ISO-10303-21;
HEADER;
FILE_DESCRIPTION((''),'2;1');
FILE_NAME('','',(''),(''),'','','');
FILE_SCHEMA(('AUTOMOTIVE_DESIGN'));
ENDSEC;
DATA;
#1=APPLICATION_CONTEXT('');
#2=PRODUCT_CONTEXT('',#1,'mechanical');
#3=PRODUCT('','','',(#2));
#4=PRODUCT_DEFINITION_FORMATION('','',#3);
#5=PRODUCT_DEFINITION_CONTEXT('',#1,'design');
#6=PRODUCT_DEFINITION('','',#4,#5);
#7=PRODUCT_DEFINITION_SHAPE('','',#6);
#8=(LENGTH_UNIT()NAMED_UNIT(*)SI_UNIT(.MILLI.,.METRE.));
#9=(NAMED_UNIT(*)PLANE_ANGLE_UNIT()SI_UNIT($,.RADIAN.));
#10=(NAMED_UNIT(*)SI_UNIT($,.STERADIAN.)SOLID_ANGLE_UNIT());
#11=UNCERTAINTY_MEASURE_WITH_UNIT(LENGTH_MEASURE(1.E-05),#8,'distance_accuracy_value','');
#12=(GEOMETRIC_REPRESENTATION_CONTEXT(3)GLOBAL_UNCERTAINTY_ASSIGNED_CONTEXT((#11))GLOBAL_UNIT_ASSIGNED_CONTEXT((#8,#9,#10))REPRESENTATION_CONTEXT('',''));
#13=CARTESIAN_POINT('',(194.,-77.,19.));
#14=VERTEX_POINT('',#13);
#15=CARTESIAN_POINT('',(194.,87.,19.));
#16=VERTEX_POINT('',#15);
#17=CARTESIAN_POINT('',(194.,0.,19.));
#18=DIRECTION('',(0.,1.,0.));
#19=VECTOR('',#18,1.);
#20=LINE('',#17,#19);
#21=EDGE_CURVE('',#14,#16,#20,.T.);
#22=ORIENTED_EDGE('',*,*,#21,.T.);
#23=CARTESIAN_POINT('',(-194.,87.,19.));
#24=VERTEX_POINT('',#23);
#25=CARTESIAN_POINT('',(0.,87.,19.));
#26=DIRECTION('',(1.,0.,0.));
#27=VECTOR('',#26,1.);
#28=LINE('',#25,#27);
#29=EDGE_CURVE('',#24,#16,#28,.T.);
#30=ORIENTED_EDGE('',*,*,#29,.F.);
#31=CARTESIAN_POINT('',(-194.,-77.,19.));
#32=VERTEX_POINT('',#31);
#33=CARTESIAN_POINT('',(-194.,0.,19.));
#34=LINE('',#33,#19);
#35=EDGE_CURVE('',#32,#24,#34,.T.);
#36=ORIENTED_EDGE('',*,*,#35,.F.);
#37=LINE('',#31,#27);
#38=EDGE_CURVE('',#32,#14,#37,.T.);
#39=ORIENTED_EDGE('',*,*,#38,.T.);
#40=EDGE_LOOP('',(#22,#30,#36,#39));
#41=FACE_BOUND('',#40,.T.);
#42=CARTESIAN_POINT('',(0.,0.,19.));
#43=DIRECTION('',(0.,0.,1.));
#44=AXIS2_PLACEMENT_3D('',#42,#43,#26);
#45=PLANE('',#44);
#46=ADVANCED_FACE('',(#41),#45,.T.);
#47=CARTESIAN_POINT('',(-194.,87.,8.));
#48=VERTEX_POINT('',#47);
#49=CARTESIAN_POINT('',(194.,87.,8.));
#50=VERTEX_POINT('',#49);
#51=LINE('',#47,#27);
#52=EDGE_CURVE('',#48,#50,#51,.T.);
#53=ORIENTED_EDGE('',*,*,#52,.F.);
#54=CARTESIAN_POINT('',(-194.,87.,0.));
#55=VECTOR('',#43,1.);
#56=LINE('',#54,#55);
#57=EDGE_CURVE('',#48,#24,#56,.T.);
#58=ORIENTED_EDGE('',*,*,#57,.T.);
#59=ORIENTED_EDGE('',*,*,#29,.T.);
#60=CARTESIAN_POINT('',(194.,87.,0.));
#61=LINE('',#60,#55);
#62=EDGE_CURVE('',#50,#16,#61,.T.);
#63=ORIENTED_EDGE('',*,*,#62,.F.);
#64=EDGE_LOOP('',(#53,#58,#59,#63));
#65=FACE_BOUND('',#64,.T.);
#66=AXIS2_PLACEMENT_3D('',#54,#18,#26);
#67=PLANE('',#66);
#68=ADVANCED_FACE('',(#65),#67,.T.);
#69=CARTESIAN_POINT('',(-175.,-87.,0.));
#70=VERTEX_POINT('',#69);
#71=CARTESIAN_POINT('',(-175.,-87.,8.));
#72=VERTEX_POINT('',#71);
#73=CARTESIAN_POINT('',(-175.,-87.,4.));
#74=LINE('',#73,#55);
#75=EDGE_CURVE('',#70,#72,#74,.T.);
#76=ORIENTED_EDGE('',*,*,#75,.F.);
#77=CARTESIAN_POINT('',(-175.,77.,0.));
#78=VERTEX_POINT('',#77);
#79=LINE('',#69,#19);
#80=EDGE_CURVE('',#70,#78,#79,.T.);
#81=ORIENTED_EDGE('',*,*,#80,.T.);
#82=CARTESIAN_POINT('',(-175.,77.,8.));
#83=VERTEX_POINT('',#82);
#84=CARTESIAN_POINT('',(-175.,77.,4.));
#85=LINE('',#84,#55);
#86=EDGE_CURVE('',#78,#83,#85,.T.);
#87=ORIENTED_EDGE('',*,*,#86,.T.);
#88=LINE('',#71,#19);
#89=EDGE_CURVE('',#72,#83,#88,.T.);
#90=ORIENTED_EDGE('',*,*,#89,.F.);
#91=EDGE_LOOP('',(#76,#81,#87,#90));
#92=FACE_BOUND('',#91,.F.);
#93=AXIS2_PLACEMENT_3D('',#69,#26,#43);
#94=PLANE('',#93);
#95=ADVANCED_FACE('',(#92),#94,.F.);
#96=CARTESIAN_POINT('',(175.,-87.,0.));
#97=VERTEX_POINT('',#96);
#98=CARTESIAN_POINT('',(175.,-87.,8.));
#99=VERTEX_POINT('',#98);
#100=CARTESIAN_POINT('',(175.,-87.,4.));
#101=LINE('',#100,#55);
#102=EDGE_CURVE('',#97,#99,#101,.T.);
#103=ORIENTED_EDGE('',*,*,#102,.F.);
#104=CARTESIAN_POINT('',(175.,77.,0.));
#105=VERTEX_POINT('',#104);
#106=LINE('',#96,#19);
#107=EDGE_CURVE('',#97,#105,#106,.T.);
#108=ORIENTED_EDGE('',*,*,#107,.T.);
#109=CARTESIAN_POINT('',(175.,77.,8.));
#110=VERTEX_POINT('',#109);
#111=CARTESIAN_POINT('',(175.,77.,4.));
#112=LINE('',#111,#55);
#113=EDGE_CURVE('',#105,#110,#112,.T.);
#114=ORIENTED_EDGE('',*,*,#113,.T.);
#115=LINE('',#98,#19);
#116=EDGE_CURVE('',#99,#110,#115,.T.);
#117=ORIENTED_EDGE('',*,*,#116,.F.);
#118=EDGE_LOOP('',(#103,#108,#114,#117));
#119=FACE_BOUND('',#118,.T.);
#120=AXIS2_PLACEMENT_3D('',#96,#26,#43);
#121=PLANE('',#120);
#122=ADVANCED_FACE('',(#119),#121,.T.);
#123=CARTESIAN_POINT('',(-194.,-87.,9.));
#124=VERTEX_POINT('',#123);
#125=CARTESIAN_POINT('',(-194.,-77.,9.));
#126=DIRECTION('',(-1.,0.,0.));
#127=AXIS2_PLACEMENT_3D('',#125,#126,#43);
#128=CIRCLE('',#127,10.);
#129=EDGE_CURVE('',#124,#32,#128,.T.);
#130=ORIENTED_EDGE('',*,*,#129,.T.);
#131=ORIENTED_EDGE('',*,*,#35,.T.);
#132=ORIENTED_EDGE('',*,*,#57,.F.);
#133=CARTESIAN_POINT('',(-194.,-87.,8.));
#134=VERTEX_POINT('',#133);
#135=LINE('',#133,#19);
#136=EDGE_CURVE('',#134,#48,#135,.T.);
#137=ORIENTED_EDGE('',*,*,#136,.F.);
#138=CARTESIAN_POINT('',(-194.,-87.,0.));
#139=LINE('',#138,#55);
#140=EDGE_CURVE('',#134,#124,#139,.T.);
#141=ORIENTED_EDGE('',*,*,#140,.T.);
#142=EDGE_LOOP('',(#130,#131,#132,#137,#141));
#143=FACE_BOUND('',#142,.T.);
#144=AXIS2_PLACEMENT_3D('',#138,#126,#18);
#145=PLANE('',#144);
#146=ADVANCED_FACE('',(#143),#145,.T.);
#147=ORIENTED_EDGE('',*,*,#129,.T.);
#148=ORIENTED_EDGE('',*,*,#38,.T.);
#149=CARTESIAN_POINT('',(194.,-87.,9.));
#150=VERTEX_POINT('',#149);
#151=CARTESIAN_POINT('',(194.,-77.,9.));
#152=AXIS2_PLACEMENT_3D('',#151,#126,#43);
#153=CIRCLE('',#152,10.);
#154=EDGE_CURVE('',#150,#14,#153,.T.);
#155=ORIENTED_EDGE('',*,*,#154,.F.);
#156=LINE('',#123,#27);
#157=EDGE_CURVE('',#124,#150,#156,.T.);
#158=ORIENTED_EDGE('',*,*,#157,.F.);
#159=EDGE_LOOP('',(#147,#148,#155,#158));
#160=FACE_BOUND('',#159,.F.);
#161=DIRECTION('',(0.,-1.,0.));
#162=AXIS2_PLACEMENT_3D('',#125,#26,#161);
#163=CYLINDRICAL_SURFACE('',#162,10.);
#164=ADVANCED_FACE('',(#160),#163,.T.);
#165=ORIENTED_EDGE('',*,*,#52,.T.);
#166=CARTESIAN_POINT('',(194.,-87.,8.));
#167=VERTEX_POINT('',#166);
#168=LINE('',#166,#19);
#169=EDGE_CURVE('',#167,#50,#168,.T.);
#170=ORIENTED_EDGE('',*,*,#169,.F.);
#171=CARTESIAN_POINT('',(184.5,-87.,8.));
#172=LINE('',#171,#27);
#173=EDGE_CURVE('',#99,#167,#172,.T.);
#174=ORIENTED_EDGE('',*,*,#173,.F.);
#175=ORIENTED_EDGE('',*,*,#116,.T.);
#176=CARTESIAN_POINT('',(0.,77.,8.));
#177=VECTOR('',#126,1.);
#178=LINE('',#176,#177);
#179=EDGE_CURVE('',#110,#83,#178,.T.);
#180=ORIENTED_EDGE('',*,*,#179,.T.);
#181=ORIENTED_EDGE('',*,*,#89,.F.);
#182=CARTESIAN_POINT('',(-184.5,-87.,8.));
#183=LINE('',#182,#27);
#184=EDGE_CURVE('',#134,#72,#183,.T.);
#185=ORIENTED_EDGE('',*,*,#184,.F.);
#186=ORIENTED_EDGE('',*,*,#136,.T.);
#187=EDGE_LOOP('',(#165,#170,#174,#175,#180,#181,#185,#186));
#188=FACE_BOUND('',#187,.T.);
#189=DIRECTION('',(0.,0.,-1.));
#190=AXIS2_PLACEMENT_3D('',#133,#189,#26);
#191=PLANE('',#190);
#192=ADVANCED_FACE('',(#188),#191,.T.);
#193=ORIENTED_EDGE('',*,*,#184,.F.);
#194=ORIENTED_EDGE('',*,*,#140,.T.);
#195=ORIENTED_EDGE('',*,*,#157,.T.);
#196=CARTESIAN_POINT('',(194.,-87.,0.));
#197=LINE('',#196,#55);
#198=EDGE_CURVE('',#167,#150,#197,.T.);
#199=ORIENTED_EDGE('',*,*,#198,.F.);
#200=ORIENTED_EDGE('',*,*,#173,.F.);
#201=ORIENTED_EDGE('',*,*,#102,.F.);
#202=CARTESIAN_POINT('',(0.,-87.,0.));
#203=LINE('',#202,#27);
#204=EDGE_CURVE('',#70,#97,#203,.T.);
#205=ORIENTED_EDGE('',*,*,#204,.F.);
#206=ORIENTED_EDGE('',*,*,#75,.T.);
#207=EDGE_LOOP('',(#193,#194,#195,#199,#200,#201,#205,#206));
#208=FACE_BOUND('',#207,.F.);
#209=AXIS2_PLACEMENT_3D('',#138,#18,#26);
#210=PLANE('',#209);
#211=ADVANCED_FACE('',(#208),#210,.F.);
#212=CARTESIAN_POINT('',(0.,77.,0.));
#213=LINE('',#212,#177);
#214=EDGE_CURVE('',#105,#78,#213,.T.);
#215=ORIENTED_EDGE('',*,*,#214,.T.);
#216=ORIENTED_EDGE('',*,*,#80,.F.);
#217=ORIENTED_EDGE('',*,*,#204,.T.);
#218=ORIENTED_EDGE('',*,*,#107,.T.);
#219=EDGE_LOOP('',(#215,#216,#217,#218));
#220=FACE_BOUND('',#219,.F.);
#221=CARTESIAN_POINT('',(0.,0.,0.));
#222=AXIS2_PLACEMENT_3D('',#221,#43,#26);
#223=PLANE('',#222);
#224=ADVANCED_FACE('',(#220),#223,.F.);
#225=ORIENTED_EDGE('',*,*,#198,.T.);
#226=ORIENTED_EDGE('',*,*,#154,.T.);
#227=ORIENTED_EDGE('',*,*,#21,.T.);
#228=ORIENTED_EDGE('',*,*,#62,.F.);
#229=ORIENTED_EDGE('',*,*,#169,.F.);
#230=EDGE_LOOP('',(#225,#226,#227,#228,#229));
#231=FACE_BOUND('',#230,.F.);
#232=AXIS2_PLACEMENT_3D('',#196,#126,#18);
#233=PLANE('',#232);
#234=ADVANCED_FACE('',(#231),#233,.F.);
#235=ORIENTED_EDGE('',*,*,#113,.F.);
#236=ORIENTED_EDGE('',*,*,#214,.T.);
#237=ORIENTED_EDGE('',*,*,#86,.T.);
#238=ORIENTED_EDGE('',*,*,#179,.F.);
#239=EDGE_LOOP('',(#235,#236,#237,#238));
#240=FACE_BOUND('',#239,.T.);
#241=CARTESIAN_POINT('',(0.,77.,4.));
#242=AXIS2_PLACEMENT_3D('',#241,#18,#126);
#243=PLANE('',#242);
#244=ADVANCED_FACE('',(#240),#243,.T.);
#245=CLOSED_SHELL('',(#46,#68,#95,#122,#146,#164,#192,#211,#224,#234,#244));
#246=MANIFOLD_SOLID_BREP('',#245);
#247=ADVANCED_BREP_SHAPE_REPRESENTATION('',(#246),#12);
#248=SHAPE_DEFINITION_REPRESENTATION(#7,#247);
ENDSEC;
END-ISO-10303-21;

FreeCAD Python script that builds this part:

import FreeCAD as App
import Part
import Sketcher
from FreeCAD import Vector


def edges_at(feature, points):
    """Names of the edges that pass closest to the given points."""
    edges = feature.Shape.Edges
    near = lambda p: min(range(len(edges)), key=lambda i: edges[i].distToShape(Part.Vertex(*p))[0])
    return sorted({f"Edge{near(p) + 1}" for p in points})

doc = App.newDocument("Part")
body = doc.addObject("PartDesign::Body", "Body")

# Sketch on XY plane
sketch1 = doc.addObject("Sketcher::SketchObject", "Sketch")
body.addObject(sketch1)
sketch1.AttachmentSupport = (doc.XY_Plane, [""])
sketch1.MapMode = "FlatFace"
sketch1.addGeometry([
    Part.LineSegment(Vector(-194, 87, 0), Vector(-194, -87, 0)),
    Part.LineSegment(Vector(-194, -87, 0), Vector(194, -87, 0)),
    Part.LineSegment(Vector(194, -87, 0), Vector(194, 87, 0)),
    Part.LineSegment(Vector(194, 87, 0), Vector(-194, 87, 0)),
], False)
sketch1.addConstraint([
    Sketcher.Constraint("Coincident", 0, 2, 1, 1),
    Sketcher.Constraint("Coincident", 1, 2, 2, 1),
    Sketcher.Constraint("Coincident", 2, 2, 3, 1),
    Sketcher.Constraint("Coincident", 3, 2, 0, 1),
    Sketcher.Constraint("Vertical", 0),
    Sketcher.Constraint("Horizontal", 1),
    Sketcher.Constraint("Vertical", 2),
    Sketcher.Constraint("Horizontal", 3),
    Sketcher.Constraint("Symmetric", 0, 2, 2, 2, -1, 1),
    Sketcher.Constraint("DistanceX", 1, 1, 1, 2, 388.0),
    Sketcher.Constraint("DistanceY", 0, 2, 0, 1, 174.0),
])
pad1 = doc.addObject("PartDesign::Pad", "Pad")
body.addObject(pad1)
pad1.Profile = sketch1
pad1.Length = 19

# Sketch on XZ plane
sketch2 = doc.addObject("Sketcher::SketchObject", "Sketch001")
body.addObject(sketch2)
sketch2.AttachmentSupport = (doc.XZ_Plane, [""])
sketch2.MapMode = "FlatFace"
sketch2.AttachmentOffset = App.Placement(Vector(0, 0, 87), App.Rotation())
sketch2.addGeometry([
    Part.LineSegment(Vector(175, 8, 0), Vector(175, 0, 0)),  # 0
    Part.LineSegment(Vector(175, 0, 0), Vector(194, 0, 0)),  # 1
    Part.LineSegment(Vector(194, 0, 0), Vector(194, 8, 0)),  # 2
    Part.LineSegment(Vector(194, 8, 0), Vector(175, 8, 0)),  # 3
    Part.LineSegment(Vector(-194, 8, 0), Vector(-194, 0, 0)),  # 4
    Part.LineSegment(Vector(-194, 0, 0), Vector(-175, 0, 0)),  # 5
    Part.LineSegment(Vector(-175, 0, 0), Vector(-175, 8, 0)),  # 6
    Part.LineSegment(Vector(-175, 8, 0), Vector(-194, 8, 0)),  # 7
], False)
sketch2.addConstraint([
    Sketcher.Constraint("Coincident", 0, 2, 1, 1),
    Sketcher.Constraint("Coincident", 1, 2, 2, 1),
    Sketcher.Constraint("Coincident", 2, 2, 3, 1),
    Sketcher.Constraint("Coincident", 3, 2, 0, 1),
    Sketcher.Constraint("Coincident", 4, 2, 5, 1),
    Sketcher.Constraint("Coincident", 5, 2, 6, 1),
    Sketcher.Constraint("Coincident", 6, 2, 7, 1),
    Sketcher.Constraint("Coincident", 7, 2, 4, 1),
    Sketcher.Constraint("Vertical", 0),
    Sketcher.Constraint("Horizontal", 1),
    Sketcher.Constraint("Vertical", 2),
    Sketcher.Constraint("Horizontal", 3),
    Sketcher.Constraint("Vertical", 4),
    Sketcher.Constraint("Horizontal", 5),
    Sketcher.Constraint("Vertical", 6),
    Sketcher.Constraint("Horizontal", 7),
    Sketcher.Constraint("Symmetric", 1, 2, 4, 2, -1, 1),
    Sketcher.Constraint("Symmetric", 0, 2, 5, 2, -2),
    Sketcher.Constraint("Horizontal", 3, 2, 6, 2),
    Sketcher.Constraint("DistanceX", 1, 1, 1, 2, 19.0),
    Sketcher.Constraint("DistanceY", 0, 2, 0, 1, 8.0),
    Sketcher.Constraint("DistanceX", -1, 1, 0, 2, 175.0),
])
pocket1 = doc.addObject("PartDesign::Pocket", "Pocket")
body.addObject(pocket1)
pocket1.Profile = sketch2
pocket1.Length = 178

# Sketch on XZ plane
sketch3 = doc.addObject("Sketcher::SketchObject", "Sketch002")
body.addObject(sketch3)
sketch3.AttachmentSupport = (doc.XZ_Plane, [""])
sketch3.MapMode = "FlatFace"
sketch3.AttachmentOffset = App.Placement(Vector(0, 0, -87), App.Rotation())
sketch3.addGeometry([
    Part.LineSegment(Vector(175, 8, 0), Vector(175, 0, 0)),
    Part.LineSegment(Vector(175, 0, 0), Vector(-175, 0, 0)),
    Part.LineSegment(Vector(-175, 0, 0), Vector(-175, 8, 0)),
    Part.LineSegment(Vector(-175, 8, 0), Vector(175, 8, 0)),
], False)
sketch3.addConstraint([
    Sketcher.Constraint("Coincident", 0, 2, 1, 1),
    Sketcher.Constraint("Coincident", 1, 2, 2, 1),
    Sketcher.Constraint("Coincident", 2, 2, 3, 1),
    Sketcher.Constraint("Coincident", 3, 2, 0, 1),
    Sketcher.Constraint("Vertical", 0),
    Sketcher.Constraint("Horizontal", 1),
    Sketcher.Constraint("Vertical", 2),
    Sketcher.Constraint("Horizontal", 3),
    Sketcher.Constraint("Symmetric", 0, 2, 1, 2, -1, 1),
    Sketcher.Constraint("DistanceX", 1, 2, 1, 1, 350.0),
    Sketcher.Constraint("DistanceY", 0, 2, 0, 1, 8.0),
])
pocket2 = doc.addObject("PartDesign::Pocket", "Pocket001")
body.addObject(pocket2)
pocket2.Profile = sketch3
pocket2.Length = 10
pocket2.Reversed = True
doc.recompute()

fillet = doc.addObject("PartDesign::Fillet", "Fillet")
body.addObject(fillet)
fillet.Base = (pocket2, edges_at(pocket2, [(0, -87, 19)]))
fillet.Radius = 10

doc.recompute()
